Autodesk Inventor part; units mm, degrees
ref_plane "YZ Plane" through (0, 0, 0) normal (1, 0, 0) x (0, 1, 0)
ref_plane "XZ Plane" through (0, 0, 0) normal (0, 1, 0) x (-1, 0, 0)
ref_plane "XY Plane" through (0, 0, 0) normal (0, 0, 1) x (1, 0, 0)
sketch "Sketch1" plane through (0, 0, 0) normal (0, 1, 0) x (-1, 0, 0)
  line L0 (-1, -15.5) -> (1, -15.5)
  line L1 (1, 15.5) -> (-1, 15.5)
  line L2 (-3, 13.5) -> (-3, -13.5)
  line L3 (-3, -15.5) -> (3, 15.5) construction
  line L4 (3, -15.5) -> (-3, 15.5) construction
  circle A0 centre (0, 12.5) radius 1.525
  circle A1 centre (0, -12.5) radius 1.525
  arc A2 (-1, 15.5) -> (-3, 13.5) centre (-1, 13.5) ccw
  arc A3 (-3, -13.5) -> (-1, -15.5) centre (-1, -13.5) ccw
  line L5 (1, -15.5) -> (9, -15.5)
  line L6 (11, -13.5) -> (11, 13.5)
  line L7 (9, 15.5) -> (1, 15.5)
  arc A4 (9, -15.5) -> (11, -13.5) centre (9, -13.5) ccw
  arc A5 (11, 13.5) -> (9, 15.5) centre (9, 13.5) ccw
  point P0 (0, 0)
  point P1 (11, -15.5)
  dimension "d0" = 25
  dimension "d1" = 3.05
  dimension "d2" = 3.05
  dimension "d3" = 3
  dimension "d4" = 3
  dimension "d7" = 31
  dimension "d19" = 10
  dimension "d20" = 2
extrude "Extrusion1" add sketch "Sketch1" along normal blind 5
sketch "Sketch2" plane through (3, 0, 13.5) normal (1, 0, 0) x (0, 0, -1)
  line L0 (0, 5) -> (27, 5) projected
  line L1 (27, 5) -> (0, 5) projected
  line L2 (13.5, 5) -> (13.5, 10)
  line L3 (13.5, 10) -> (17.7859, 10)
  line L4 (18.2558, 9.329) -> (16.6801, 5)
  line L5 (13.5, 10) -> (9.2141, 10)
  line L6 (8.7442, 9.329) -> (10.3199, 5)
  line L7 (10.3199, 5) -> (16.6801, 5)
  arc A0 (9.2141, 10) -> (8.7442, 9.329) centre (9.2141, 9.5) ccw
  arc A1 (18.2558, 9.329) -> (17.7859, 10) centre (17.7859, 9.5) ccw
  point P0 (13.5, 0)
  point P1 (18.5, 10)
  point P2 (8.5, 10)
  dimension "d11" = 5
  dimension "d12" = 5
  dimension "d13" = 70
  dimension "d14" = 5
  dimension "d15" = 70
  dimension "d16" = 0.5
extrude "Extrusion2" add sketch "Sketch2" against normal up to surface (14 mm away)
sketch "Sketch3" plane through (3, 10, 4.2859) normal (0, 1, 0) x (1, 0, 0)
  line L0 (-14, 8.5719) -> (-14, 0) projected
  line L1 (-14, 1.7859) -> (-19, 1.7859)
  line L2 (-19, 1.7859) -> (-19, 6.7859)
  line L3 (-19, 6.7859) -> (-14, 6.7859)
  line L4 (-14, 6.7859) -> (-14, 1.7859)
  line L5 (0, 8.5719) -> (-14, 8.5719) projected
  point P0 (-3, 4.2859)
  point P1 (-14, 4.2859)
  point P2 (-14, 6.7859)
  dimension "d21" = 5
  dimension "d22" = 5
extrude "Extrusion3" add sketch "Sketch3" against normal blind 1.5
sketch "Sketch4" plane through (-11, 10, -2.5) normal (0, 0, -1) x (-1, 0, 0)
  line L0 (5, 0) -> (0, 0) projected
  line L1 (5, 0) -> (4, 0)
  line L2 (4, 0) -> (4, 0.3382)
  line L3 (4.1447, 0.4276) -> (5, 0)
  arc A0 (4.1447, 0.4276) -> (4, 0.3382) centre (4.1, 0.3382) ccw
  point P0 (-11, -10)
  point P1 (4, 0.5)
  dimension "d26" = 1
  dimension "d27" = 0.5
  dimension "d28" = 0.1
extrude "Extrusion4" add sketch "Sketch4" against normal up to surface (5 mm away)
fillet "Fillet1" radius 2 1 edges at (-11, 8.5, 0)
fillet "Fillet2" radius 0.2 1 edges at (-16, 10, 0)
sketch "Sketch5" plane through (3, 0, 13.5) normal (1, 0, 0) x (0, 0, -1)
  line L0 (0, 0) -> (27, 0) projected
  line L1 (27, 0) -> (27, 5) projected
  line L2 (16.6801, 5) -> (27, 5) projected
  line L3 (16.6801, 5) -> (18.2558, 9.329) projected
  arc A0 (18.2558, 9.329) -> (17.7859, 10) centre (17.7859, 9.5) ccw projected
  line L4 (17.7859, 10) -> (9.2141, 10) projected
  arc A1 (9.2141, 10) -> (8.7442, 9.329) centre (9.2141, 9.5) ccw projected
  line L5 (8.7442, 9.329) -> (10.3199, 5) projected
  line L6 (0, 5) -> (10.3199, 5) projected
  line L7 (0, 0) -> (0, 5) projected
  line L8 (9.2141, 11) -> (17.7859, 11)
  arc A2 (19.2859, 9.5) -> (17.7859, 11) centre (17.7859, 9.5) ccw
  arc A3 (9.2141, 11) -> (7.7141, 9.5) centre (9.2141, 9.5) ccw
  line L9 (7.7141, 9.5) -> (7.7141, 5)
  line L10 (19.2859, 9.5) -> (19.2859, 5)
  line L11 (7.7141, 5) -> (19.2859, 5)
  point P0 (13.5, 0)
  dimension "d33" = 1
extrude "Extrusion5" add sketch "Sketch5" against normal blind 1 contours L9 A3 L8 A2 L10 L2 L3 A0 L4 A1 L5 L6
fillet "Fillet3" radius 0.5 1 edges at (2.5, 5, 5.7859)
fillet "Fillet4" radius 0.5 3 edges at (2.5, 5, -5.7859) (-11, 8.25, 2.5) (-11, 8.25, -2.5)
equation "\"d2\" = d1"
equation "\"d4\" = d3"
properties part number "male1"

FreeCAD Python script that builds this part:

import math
import FreeCAD as App
import Part
import Sketcher
Q = App.Units.Quantity


def edges_at(feature, points):
    """Names of the edges that pass closest to the given points."""
    edges = feature.Shape.Edges
    near = lambda p: min(range(len(edges)), key=lambda i: edges[i].distToShape(Part.Vertex(*p))[0])
    return sorted({f"Edge{near(p) + 1}" for p in points})


def add_polygon(sketch, points):
    """Adds a closed chain of lines whose ends are joined by coincident constraints."""
    first, n = sketch.GeometryCount, len(points)
    for a, b in zip(points, points[1:] + points[:1]):
        sketch.addGeometry(Part.LineSegment(App.Vector(*a, 0), App.Vector(*b, 0)), False)
    for i in range(n):
        sketch.addConstraint(Sketcher.Constraint("Coincident", first + i, 2, first + (i + 1) % n, 1))

doc = App.newDocument("Part")
body = doc.addObject("PartDesign::Body", "Body")

# Sketch on XZ plane
sketch1 = body.newObject("Sketcher::SketchObject", "Sketch")
sketch1.AttachmentSupport = (doc.getObject("XZ_Plane"), [""])
sketch1.MapMode = "FlatFace"
sketch1.addGeometry(Part.ArcOfCircle(Part.Circle(App.Vector(1, -13.5, 0), App.Vector(0, 0, 1), 2), math.radians(-90), math.radians(0)), False)
sketch1.addGeometry(Part.LineSegment(App.Vector(1, -15.5, 0), App.Vector(-9, -15.5, 0)), False)
sketch1.addGeometry(Part.ArcOfCircle(Part.Circle(App.Vector(-9, -13.5, 0), App.Vector(0, 0, 1), 2), math.radians(180), math.radians(270)), False)
sketch1.addGeometry(Part.LineSegment(App.Vector(-11, -13.5, 0), App.Vector(-11, 13.5, 0)), False)
sketch1.addGeometry(Part.ArcOfCircle(Part.Circle(App.Vector(-9, 13.5, 0), App.Vector(0, 0, 1), 2), math.radians(90), math.radians(180)), False)
sketch1.addGeometry(Part.LineSegment(App.Vector(-9, 15.5, 0), App.Vector(1, 15.5, 0)), False)
sketch1.addGeometry(Part.ArcOfCircle(Part.Circle(App.Vector(1, 13.5, 0), App.Vector(0, 0, 1), 2), math.radians(0), math.radians(90)), False)
sketch1.addGeometry(Part.LineSegment(App.Vector(3, 13.5, 0), App.Vector(3, -13.5, 0)), False)
sketch1.addGeometry(Part.Circle(App.Vector(0, -12.5, 0), App.Vector(0, 0, 1), 1.5), False)
sketch1.addGeometry(Part.Circle(App.Vector(0, 12.5, 0), App.Vector(0, 0, 1), 1.5), False)
sketch1.addConstraint(Sketcher.Constraint("Tangent", 0, 1, 1, 1))
sketch1.addConstraint(Sketcher.Constraint("Tangent", 1, 2, 2, 2))
sketch1.addConstraint(Sketcher.Constraint("Tangent", 2, 1, 3, 1))
sketch1.addConstraint(Sketcher.Constraint("Tangent", 3, 2, 4, 2))
sketch1.addConstraint(Sketcher.Constraint("Tangent", 4, 1, 5, 1))
sketch1.addConstraint(Sketcher.Constraint("Tangent", 5, 2, 6, 2))
sketch1.addConstraint(Sketcher.Constraint("Tangent", 6, 1, 7, 1))
sketch1.addConstraint(Sketcher.Constraint("Tangent", 7, 2, 0, 2))
sketch1.addConstraint(Sketcher.Constraint("Horizontal", 1))
sketch1.addConstraint(Sketcher.Constraint("Vertical", 3))
sketch1.addConstraint(Sketcher.Constraint("Horizontal", 5))
sketch1.addConstraint(Sketcher.Constraint("Vertical", 7))
sketch1.addConstraint(Sketcher.Constraint("Equal", 0, 2))
sketch1.addConstraint(Sketcher.Constraint("Equal", 2, 4))
sketch1.addConstraint(Sketcher.Constraint("Equal", 4, 6))
sketch1.addConstraint(Sketcher.Constraint("Equal", 8, 9))
sketch1.addConstraint(Sketcher.Constraint("Symmetric", 8, 3, 9, 3, -1, 1))
sketch1.addConstraint(Sketcher.Constraint("PointOnObject", 8, 3, -2))
sketch1.addConstraint(Sketcher.Constraint("Radius", 0, Q("2 mm")))
sketch1.addConstraint(Sketcher.Constraint("Diameter", 8, Q("3.05 mm")))
sketch1.addConstraint(Sketcher.Constraint("DistanceX", 1, 2, 1, 1, Q("10 mm")))
sketch1.addConstraint(Sketcher.Constraint("DistanceX", -1, 1, 6, 1, Q("3 mm")))
sketch1.addConstraint(Sketcher.Constraint("DistanceY", 8, 3, 9, 3, Q("25 mm")))
sketch1.addConstraint(Sketcher.Constraint("DistanceY", 0, 1, 8, 3, Q("3 mm")))
sketch1.addConstraint(Sketcher.Constraint("DistanceY", 9, 3, 4, 1, Q("3 mm")))
pad1 = body.newObject("PartDesign::Pad", "Pad")
pad1.Profile = sketch1
pad1.Length = 5
pad1.Reversed = True

# Sketch on YZ plane
sketch2 = body.newObject("Sketcher::SketchObject", "Sketch001")
sketch2.AttachmentSupport = (doc.getObject("YZ_Plane"), [""])
sketch2.MapMode = "FlatFace"
sketch2.AttachmentOffset = App.Placement(App.Vector(0, 0, 3), App.Rotation())
sketch2.addGeometry(Part.LineSegment(App.Vector(9.3, 4.8, 0), App.Vector(5, 3.2, 0)), False)
sketch2.addGeometry(Part.LineSegment(App.Vector(5, 3.2, 0), App.Vector(5, -3.2, 0)), False)
sketch2.addGeometry(Part.LineSegment(App.Vector(5, -3.2, 0), App.Vector(9.3, -4.8, 0)), False)
sketch2.addGeometry(Part.ArcOfCircle(Part.Circle(App.Vector(9.5, -4.3, 0), App.Vector(0, 0, 1), 0.5), math.radians(-110), math.radians(0)), False)
sketch2.addGeometry(Part.LineSegment(App.Vector(10, -4.3, 0), App.Vector(10, 4.3, 0)), False)
sketch2.addGeometry(Part.ArcOfCircle(Part.Circle(App.Vector(9.5, 4.3, 0), App.Vector(0, 0, 1), 0.5), math.radians(0), math.radians(110)), False)
sketch2.addConstraint(Sketcher.Constraint("Coincident", 0, 2, 1, 1))
sketch2.addConstraint(Sketcher.Constraint("Coincident", 1, 2, 2, 1))
sketch2.addConstraint(Sketcher.Constraint("Tangent", 2, 2, 3, 1))
sketch2.addConstraint(Sketcher.Constraint("Tangent", 3, 2, 4, 1))
sketch2.addConstraint(Sketcher.Constraint("Tangent", 4, 2, 5, 1))
sketch2.addConstraint(Sketcher.Constraint("Tangent", 5, 2, 0, 1))
sketch2.addConstraint(Sketcher.Constraint("Vertical", 1))
sketch2.addConstraint(Sketcher.Constraint("Vertical", 4))
sketch2.addConstraint(Sketcher.Constraint("Equal", 3, 5))
sketch2.addConstraint(Sketcher.Constraint("Symmetric", 2, 2, 5, 2, -1))
sketch2.addConstraint(Sketcher.Constraint("Radius", 3, Q("0.5 mm")))
sketch2.addConstraint(Sketcher.Constraint("DistanceX", -1, 1, 0, 2, Q("5 mm")))
sketch2.addConstraint(Sketcher.Constraint("DistanceX", 1, 2, 3, 2, Q("5 mm")))
sketch2.addConstraint(Sketcher.Constraint("Angle", 0, Q("-159.9991 deg")))
sketch2.addConstraint(Sketcher.Constraint("DistanceY", -1, 1, 0, 2, Q("3.18 mm")))
pad2 = body.newObject("PartDesign::Pad", "Pad001")
pad2.Profile = sketch2
pad2.Length = 14
pad2.Reversed = True

# Sketch on XZ plane
sketch3 = body.newObject("Sketcher::SketchObject", "Sketch002")
sketch3.AttachmentSupport = (doc.getObject("XZ_Plane"), [""])
sketch3.MapMode = "FlatFace"
sketch3.AttachmentOffset = App.Placement(App.Vector(0, 0, -10), App.Rotation())
add_polygon(sketch3, [(-11, 2), (-11, -2), (-16, -2), (-16, 2)])  # lines 0-3
sketch3.addConstraint(Sketcher.Constraint("Vertical", 0))
sketch3.addConstraint(Sketcher.Constraint("Horizontal", 1))
sketch3.addConstraint(Sketcher.Constraint("Vertical", 2))
sketch3.addConstraint(Sketcher.Constraint("Horizontal", 3))
sketch3.addConstraint(Sketcher.Constraint("Equal", 3, 0))
sketch3.addConstraint(Sketcher.Constraint("DistanceX", 1, 2, 1, 1, Q("5 mm")))
sketch3.addConstraint(Sketcher.Constraint("DistanceX", 0, 2, -1, 1, Q("11 mm")))
sketch3.addConstraint(Sketcher.Constraint("DistanceY", 0, 2, -1, 1, Q("2.5 mm")))
pad3 = body.newObject("PartDesign::Pad", "Pad002")
pad3.Profile = sketch3
pad3.Length = 1.5

# Sketch on XY plane
sketch4 = body.newObject("Sketcher::SketchObject", "Sketch003")
sketch4.AttachmentSupport = (doc.getObject("XY_Plane"), [""])
sketch4.MapMode = "FlatFace"
sketch4.AttachmentOffset = App.Placement(App.Vector(0, 0, -2.5), App.Rotation())
sketch4.addGeometry(Part.LineSegment(App.Vector(-15, 10, 0), App.Vector(-16, 10, 0)), False)
sketch4.addGeometry(Part.LineSegment(App.Vector(-16, 10, 0), App.Vector(-15.14, 10.43, 0)), False)
sketch4.addGeometry(Part.ArcOfCircle(Part.Circle(App.Vector(-15.1, 10.34, 0), App.Vector(0, 0, 1), 0.1), math.radians(0), math.radians(117)), False)
sketch4.addGeometry(Part.LineSegment(App.Vector(-15, 10.34, 0), App.Vector(-15, 10, 0)), False)
sketch4.addConstraint(Sketcher.Constraint("Coincident", 0, 2, 1, 1))
sketch4.addConstraint(Sketcher.Constraint("Tangent", 1, 2, 2, 2))
sketch4.addConstraint(Sketcher.Constraint("Tangent", 2, 1, 3, 1))
sketch4.addConstraint(Sketcher.Constraint("Coincident", 3, 2, 0, 1))
sketch4.addConstraint(Sketcher.Constraint("Horizontal", 0))
sketch4.addConstraint(Sketcher.Constraint("Vertical", 3))
sketch4.addConstraint(Sketcher.Constraint("Radius", 2, Q("0.1 mm")))
sketch4.addConstraint(Sketcher.Constraint("DistanceX", 0, 2, 0, 1, Q("1 mm")))
sketch4.addConstraint(Sketcher.Constraint("DistanceX", 0, 2, -1, 1, Q("16 mm")))
sketch4.addConstraint(Sketcher.Constraint("DistanceY", -1, 1, 0, 2, Q("10 mm")))
sketch4.addConstraint(Sketcher.Constraint("DistanceY", 3, 2, 3, 1, Q("0.3382 mm")))
pad4 = body.newObject("PartDesign::Pad", "Pad003")
pad4.Profile = sketch4
pad4.Length = 5
doc.recompute()

fillet = body.newObject("PartDesign::Fillet", "Fillet")
fillet.Base = (pad4, edges_at(pad4, [(-11, 8.5, 0)]))
fillet.Radius = 2
doc.recompute()

fillet2 = body.newObject("PartDesign::Fillet", "Fillet001")
fillet2.Base = (fillet, edges_at(fillet, [(-16, 10, 0)]))
fillet2.Radius = 0.2

# Sketch on YZ plane
sketch5 = body.newObject("Sketcher::SketchObject", "Sketch004")
sketch5.AttachmentSupport = (doc.getObject("YZ_Plane"), [""])
sketch5.MapMode = "FlatFace"
sketch5.AttachmentOffset = App.Placement(App.Vector(0, 0, 3), App.Rotation())
sketch5.addGeometry(Part.LineSegment(App.Vector(9.5, 5.8, 0), App.Vector(5, 5.8, 0)), False)
sketch5.addGeometry(Part.LineSegment(App.Vector(5, 5.8, 0), App.Vector(5, 3.2, 0)), False)
sketch5.addGeometry(Part.LineSegment(App.Vector(5, 3.2, 0), App.Vector(9.3, 4.8, 0)), False)
sketch5.addGeometry(Part.ArcOfCircle(Part.Circle(App.Vector(9.5, 4.3, 0), App.Vector(0, 0, 1), 0.5), math.radians(0), math.radians(110)), False)
sketch5.addGeometry(Part.LineSegment(App.Vector(10, 4.3, 0), App.Vector(10, -4.3, 0)), False)
sketch5.addGeometry(Part.ArcOfCircle(Part.Circle(App.Vector(9.5, -4.3, 0), App.Vector(0, 0, 1), 0.5), math.radians(-110), math.radians(0)), False)
sketch5.addGeometry(Part.LineSegment(App.Vector(9.3, -4.8, 0), App.Vector(5, -3.2, 0)), False)
sketch5.addGeometry(Part.LineSegment(App.Vector(5, -3.2, 0), App.Vector(5, -5.8, 0)), False)
sketch5.addGeometry(Part.LineSegment(App.Vector(5, -5.8, 0), App.Vector(9.5, -5.8, 0)), False)
sketch5.addGeometry(Part.ArcOfCircle(Part.Circle(App.Vector(9.5, -4.3, 0), App.Vector(0, 0, 1), 1.5), math.radians(-90), math.radians(0)), False)
sketch5.addGeometry(Part.LineSegment(App.Vector(11, -4.3, 0), App.Vector(11, 4.3, 0)), False)
sketch5.addGeometry(Part.ArcOfCircle(Part.Circle(App.Vector(9.5, 4.3, 0), App.Vector(0, 0, 1), 1.5), math.radians(0), math.radians(90)), False)
sketch5.addConstraint(Sketcher.Constraint("Coincident", 0, 2, 1, 1))
sketch5.addConstraint(Sketcher.Constraint("Coincident", 1, 2, 2, 1))
sketch5.addConstraint(Sketcher.Constraint("Tangent", 2, 2, 3, 2))
sketch5.addConstraint(Sketcher.Constraint("Tangent", 3, 1, 4, 1))
sketch5.addConstraint(Sketcher.Constraint("Tangent", 4, 2, 5, 2))
sketch5.addConstraint(Sketcher.Constraint("Tangent", 5, 1, 6, 1))
sketch5.addConstraint(Sketcher.Constraint("Coincident", 6, 2, 7, 1))
sketch5.addConstraint(Sketcher.Constraint("Coincident", 7, 2, 8, 1))
sketch5.addConstraint(Sketcher.Constraint("Tangent", 8, 2, 9, 1))
sketch5.addConstraint(Sketcher.Constraint("Tangent", 9, 2, 10, 1))
sketch5.addConstraint(Sketcher.Constraint("Tangent", 10, 2, 11, 1))
sketch5.addConstraint(Sketcher.Constraint("Tangent", 11, 2, 0, 1))
sketch5.addConstraint(Sketcher.Constraint("Horizontal", 0))
sketch5.addConstraint(Sketcher.Constraint("Vertical", 1))
sketch5.addConstraint(Sketcher.Constraint("Vertical", 4))
sketch5.addConstraint(Sketcher.Constraint("Vertical", 7))
sketch5.addConstraint(Sketcher.Constraint("Horizontal", 8))
sketch5.addConstraint(Sketcher.Constraint("Vertical", 10))
sketch5.addConstraint(Sketcher.Constraint("Coincident", 9, 3, 5, 3))
sketch5.addConstraint(Sketcher.Constraint("Coincident", 11, 3, 3, 3))
sketch5.addConstraint(Sketcher.Constraint("Equal", 3, 5))
sketch5.addConstraint(Sketcher.Constraint("Symmetric", 2, 2, 5, 1, -1))
sketch5.addConstraint(Sketcher.Constraint("Vertical", 1, 2, 6, 2))
sketch5.addConstraint(Sketcher.Constraint("Radius", 3, Q("0.5 mm")))
sketch5.addConstraint(Sketcher.Constraint("DistanceX", 4, 2, 9, 2, Q("1 mm")))
sketch5.addConstraint(Sketcher.Constraint("Angle", 2, Q("20.0009 deg")))
sketch5.addConstraint(Sketcher.Constraint("DistanceX", 0, 2, 0, 1, Q("4.5 mm")))
sketch5.addConstraint(Sketcher.Constraint("DistanceX", -1, 1, 0, 2, Q("5 mm")))
sketch5.addConstraint(Sketcher.Constraint("DistanceY", -1, 1, 1, 2, Q("3.18 mm")))
pad5 = body.newObject("PartDesign::Pad", "Pad004")
pad5.Profile = sketch5
pad5.Length = 1
pad5.Reversed = True
doc.recompute()

fillet3 = body.newObject("PartDesign::Fillet", "Fillet002")
fillet3.Base = (pad5, edges_at(pad5, [(2.5, 5, 5.786)]))
fillet3.Radius = 0.5
doc.recompute()

fillet4 = body.newObject("PartDesign::Fillet", "Fillet003")
fillet4.Base = (fillet3, edges_at(fillet3, [(2.5, 5, -5.786), (-11, 8.25, 2.5), (-11, 8.25, -2.5)]))
fillet4.Radius = 0.5

doc.recompute()
